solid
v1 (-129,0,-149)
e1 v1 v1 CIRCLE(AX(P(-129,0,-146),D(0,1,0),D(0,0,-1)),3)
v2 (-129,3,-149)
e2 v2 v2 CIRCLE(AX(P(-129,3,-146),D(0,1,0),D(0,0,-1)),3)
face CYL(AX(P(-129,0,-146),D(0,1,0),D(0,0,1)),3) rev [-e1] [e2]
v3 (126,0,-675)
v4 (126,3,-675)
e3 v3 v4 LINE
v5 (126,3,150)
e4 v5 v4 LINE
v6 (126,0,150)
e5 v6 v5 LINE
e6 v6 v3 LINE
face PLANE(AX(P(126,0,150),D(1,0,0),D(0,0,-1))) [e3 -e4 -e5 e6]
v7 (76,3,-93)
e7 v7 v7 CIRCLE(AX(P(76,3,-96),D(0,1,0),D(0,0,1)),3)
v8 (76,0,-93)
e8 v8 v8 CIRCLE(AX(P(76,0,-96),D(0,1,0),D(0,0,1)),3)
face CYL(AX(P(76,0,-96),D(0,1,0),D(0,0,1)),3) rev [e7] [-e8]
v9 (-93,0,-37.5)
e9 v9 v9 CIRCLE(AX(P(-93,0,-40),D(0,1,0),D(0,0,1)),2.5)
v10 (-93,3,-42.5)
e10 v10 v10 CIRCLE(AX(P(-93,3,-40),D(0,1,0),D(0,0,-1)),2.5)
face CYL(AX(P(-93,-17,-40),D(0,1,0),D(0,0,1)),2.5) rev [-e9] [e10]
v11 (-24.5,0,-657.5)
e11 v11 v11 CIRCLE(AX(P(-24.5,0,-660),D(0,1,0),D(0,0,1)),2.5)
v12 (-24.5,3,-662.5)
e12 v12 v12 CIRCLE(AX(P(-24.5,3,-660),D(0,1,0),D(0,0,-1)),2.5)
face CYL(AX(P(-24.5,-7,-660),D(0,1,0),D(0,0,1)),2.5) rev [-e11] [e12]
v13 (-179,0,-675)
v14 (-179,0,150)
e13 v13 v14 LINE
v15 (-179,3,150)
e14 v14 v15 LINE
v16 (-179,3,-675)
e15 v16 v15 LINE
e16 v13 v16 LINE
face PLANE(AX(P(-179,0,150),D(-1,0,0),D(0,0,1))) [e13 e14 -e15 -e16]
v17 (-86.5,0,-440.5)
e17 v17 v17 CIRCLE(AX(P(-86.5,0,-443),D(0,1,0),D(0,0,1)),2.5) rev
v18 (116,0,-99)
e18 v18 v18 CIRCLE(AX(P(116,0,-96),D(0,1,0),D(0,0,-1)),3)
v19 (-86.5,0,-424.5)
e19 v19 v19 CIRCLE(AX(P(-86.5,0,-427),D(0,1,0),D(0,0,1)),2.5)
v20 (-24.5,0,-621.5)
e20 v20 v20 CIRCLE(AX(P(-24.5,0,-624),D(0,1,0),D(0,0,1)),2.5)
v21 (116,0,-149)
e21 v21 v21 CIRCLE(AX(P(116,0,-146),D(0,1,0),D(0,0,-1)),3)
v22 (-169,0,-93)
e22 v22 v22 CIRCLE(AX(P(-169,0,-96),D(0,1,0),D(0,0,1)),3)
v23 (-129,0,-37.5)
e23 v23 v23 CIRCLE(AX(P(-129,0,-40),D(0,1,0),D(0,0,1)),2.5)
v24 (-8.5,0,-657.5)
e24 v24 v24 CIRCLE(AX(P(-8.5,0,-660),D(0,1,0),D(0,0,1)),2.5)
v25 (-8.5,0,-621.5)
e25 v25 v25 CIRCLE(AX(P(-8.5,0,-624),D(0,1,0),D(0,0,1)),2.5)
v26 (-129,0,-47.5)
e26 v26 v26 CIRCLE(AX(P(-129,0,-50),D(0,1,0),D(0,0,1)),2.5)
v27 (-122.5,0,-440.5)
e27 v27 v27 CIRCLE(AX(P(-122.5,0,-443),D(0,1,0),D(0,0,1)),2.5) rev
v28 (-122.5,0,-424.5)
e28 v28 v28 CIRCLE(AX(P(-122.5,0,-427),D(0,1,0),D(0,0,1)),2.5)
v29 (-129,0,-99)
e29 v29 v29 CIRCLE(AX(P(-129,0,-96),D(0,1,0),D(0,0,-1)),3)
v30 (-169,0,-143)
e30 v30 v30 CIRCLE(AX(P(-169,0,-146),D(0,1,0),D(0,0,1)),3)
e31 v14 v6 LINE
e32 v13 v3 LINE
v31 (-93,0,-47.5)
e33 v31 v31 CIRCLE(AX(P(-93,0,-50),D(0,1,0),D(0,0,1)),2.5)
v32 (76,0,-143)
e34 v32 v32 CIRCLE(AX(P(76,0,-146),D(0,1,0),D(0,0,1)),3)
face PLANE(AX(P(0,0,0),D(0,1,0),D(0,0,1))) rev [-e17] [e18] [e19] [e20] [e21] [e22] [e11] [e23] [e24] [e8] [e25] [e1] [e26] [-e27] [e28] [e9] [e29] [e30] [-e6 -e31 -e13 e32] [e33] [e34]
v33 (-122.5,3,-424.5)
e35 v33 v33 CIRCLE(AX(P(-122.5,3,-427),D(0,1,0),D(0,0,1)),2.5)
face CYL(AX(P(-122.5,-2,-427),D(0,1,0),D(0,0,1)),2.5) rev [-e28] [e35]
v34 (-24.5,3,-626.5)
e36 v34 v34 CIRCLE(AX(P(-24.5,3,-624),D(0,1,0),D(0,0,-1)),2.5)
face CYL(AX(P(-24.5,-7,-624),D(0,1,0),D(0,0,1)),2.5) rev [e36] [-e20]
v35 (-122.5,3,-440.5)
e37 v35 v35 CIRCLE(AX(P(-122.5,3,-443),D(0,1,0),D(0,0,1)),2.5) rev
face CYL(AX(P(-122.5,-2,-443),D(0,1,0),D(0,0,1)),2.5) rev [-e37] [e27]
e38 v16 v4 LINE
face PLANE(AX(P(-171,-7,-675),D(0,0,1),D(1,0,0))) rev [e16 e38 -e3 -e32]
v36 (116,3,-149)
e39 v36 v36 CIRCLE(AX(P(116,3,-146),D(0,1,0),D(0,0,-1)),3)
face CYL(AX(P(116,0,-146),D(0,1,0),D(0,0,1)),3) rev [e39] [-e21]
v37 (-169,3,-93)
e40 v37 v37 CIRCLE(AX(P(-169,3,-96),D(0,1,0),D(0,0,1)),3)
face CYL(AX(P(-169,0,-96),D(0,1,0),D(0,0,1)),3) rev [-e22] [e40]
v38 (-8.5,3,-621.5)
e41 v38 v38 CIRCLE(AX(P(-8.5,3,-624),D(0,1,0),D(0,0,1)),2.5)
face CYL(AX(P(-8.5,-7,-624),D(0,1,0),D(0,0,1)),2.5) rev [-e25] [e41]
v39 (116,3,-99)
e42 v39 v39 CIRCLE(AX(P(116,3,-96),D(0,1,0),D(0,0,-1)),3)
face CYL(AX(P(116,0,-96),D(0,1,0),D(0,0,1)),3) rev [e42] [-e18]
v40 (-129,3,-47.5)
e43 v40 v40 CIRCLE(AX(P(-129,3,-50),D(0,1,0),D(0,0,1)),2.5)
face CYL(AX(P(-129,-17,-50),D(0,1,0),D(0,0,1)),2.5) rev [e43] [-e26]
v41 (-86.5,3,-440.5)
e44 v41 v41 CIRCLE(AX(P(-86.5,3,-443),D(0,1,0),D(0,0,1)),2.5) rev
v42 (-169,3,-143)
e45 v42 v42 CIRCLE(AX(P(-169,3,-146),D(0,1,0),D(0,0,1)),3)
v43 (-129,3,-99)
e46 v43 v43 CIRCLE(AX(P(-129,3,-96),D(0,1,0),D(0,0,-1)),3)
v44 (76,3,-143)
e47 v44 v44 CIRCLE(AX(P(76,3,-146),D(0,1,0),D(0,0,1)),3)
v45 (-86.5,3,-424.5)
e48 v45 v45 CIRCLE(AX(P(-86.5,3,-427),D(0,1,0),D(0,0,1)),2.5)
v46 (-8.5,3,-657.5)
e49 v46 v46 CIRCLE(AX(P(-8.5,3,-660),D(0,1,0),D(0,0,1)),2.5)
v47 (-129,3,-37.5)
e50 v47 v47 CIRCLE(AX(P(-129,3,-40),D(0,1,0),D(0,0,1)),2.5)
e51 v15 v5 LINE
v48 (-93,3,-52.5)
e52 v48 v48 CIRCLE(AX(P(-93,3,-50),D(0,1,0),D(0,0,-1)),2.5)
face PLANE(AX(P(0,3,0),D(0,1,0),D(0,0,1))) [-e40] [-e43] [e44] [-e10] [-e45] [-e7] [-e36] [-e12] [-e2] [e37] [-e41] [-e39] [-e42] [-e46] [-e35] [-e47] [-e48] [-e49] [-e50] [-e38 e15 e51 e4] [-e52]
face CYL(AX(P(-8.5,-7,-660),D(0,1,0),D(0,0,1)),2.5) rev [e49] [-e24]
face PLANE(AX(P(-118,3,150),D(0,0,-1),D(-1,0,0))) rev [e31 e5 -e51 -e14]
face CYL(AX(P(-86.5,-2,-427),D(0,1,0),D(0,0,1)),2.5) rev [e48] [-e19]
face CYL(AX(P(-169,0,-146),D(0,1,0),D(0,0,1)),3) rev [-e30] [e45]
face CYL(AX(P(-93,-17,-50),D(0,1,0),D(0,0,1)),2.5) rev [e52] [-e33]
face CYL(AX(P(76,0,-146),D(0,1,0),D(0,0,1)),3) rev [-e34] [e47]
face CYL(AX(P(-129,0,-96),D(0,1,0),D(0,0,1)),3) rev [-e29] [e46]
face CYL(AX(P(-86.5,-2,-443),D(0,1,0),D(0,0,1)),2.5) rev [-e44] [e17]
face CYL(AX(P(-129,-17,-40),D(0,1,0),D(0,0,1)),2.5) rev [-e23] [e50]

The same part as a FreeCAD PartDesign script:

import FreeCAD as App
import Part
import Sketcher
from FreeCAD import Vector


def add_polygon(sketch, points):
    """Adds a closed chain of lines whose ends are joined by coincident constraints."""
    first, n = sketch.GeometryCount, len(points)
    for a, b in zip(points, points[1:] + points[:1]):
        sketch.addGeometry(Part.LineSegment(App.Vector(*a, 0), App.Vector(*b, 0)), False)
    for i in range(n):
        sketch.addConstraint(Sketcher.Constraint("Coincident", first + i, 2, first + (i + 1) % n, 1))

doc = App.newDocument("Part")
params = doc.addObject("Spreadsheet::Sheet", "Params")
for row, (alias, value) in enumerate([
    ("sketch1_width", "289 mm"),
    ("sketch1_height", "300 mm"),
    ("pad1_length", "3 mm"),
    ("sketch2_diameter", "5 mm"),
    ("pocket1_length", "20 mm"),
    ("sketch3_width", "289 mm"),
    ("sketch3_height", "3 mm"),
    ("pad2_length", "600 mm"),
    ("sketch4_diameter", "5 mm"),
    ("pocket2_length", "10 mm"),
    ("sketch5_width", "289 mm"),
    ("sketch5_height", "75 mm"),
    ("pocket3_length", "10 mm"),
    ("sketch6_diameter", "5 mm"),
    ("pocket4_length", "5 mm"),
    ("sketch7_width", "8 mm"),
    ("sketch7_height", "825 mm"),
    ("sketch8_diameter", "6 mm"),
], start=1):
    params.set(f"A{row}", alias)
    params.set(f"B{row}", "=" + value)
    params.setAlias(f"B{row}", alias)

body = doc.addObject("PartDesign::Body", "Body")

# Sketch on XZ plane
sketch1 = doc.addObject("Sketcher::SketchObject", "Sketch")
body.addObject(sketch1)
sketch1.AttachmentSupport = (doc.XZ_Plane, [""])
sketch1.MapMode = "FlatFace"
add_polygon(sketch1, [(-171, -150), (-171, 150), (118, 150), (118, -150)])  # lines 0-3
sketch1.addConstraint(Sketcher.Constraint("Vertical", 0))
sketch1.addConstraint(Sketcher.Constraint("Horizontal", 1))
sketch1.addConstraint(Sketcher.Constraint("Vertical", 2))
sketch1.addConstraint(Sketcher.Constraint("Horizontal", 3))
sketch1.addConstraint(Sketcher.Constraint("DistanceX", 1, 1, 1, 2, 289.0))
sketch1.addConstraint(Sketcher.Constraint("DistanceY", 0, 1, 0, 2, 300.0))
sketch1.addConstraint(Sketcher.Constraint("DistanceX", 0, 2, -1, 1, 171.0))
sketch1.addConstraint(Sketcher.Constraint("DistanceY", -1, 1, 0, 2, 150.0))
sketch1.setExpression("Constraints[8]", "Params.sketch1_width")
sketch1.setExpression("Constraints[9]", "Params.sketch1_height")
pad1 = doc.addObject("PartDesign::Pad", "Pad")
body.addObject(pad1)
pad1.Profile = sketch1
pad1.setExpression("Length", "Params.pad1_length")
pad1.Reversed = True

# Sketch on XZ plane
sketch2 = doc.addObject("Sketcher::SketchObject", "Sketch001")
body.addObject(sketch2)
sketch2.AttachmentSupport = (doc.XZ_Plane, [""])
sketch2.MapMode = "FlatFace"
sketch2.AttachmentOffset = App.Placement(Vector(0, 0, -3), App.Rotation())
sketch2.addGeometry(Part.Circle(Vector(-129, -50, 0), Vector(0, 0, 1), 2.5), False)
sketch2.addGeometry(Part.Circle(Vector(-129, -40, 0), Vector(0, 0, 1), 2.5), False)
sketch2.addGeometry(Part.Circle(Vector(-93, -40, 0), Vector(0, 0, 1), 2.5), False)
sketch2.addGeometry(Part.Circle(Vector(-93, -50, 0), Vector(0, 0, 1), 2.5), False)
sketch2.addConstraint(Sketcher.Constraint("Equal", 0, 1))
sketch2.addConstraint(Sketcher.Constraint("Equal", 1, 2))
sketch2.addConstraint(Sketcher.Constraint("Equal", 2, 3))
sketch2.addConstraint(Sketcher.Constraint("Horizontal", 1, 3, 2, 3))
sketch2.addConstraint(Sketcher.Constraint("Horizontal", 0, 3, 3, 3))
sketch2.addConstraint(Sketcher.Constraint("Vertical", 0, 3, 1, 3))
sketch2.addConstraint(Sketcher.Constraint("Vertical", 2, 3, 3, 3))
sketch2.addConstraint(Sketcher.Constraint("Diameter", 0, 5.0))
sketch2.addConstraint(Sketcher.Constraint("DistanceX", 0, 3, -1, 1, 129.0))
sketch2.addConstraint(Sketcher.Constraint("DistanceY", 0, 3, -1, 1, 50.0))
sketch2.addConstraint(Sketcher.Constraint("DistanceY", 1, 3, -1, 1, 40.0))
sketch2.addConstraint(Sketcher.Constraint("DistanceX", 2, 3, -1, 1, 93.0))
sketch2.setExpression("Constraints[7]", "Params.sketch2_diameter")
pocket1 = doc.addObject("PartDesign::Pocket", "Pocket")
body.addObject(pocket1)
pocket1.Profile = sketch2
pocket1.setExpression("Length", "Params.pocket1_length")
pocket1.Reversed = True

# Sketch on XY plane
sketch3 = doc.addObject("Sketcher::SketchObject", "Sketch002")
body.addObject(sketch3)
sketch3.AttachmentSupport = (doc.XY_Plane, [""])
sketch3.MapMode = "FlatFace"
sketch3.AttachmentOffset = App.Placement(Vector(0, 0, -150), App.Rotation())
add_polygon(sketch3, [(118, 3), (118, 0), (-171, 0), (-171, 3)])  # lines 0-3
sketch3.addConstraint(Sketcher.Constraint("Vertical", 0))
sketch3.addConstraint(Sketcher.Constraint("Horizontal", 1))
sketch3.addConstraint(Sketcher.Constraint("Vertical", 2))
sketch3.addConstraint(Sketcher.Constraint("Horizontal", 3))
sketch3.addConstraint(Sketcher.Constraint("PointOnObject", 0, 2, -1))
sketch3.addConstraint(Sketcher.Constraint("DistanceX", 1, 2, 1, 1, 289.0))
sketch3.addConstraint(Sketcher.Constraint("DistanceY", 0, 2, 0, 1, 3.0))
sketch3.addConstraint(Sketcher.Constraint("DistanceX", -1, 1, 0, 2, 118.0))
sketch3.setExpression("Constraints[9]", "Params.sketch3_width")
sketch3.setExpression("Constraints[10]", "Params.sketch3_height")
pad2 = doc.addObject("PartDesign::Pad", "Pad001")
body.addObject(pad2)
pad2.Profile = sketch3
pad2.setExpression("Length", "Params.pad2_length")
pad2.Reversed = True

# Sketch on XZ plane
sketch4 = doc.addObject("Sketcher::SketchObject", "Sketch003")
body.addObject(sketch4)
sketch4.AttachmentSupport = (doc.XZ_Plane, [""])
sketch4.MapMode = "FlatFace"
sketch4.AttachmentOffset = App.Placement(Vector(0, 0, -3), App.Rotation())
sketch4.addGeometry(Part.Circle(Vector(-8.5, -660, 0), Vector(0, 0, 1), 2.5), False)
sketch4.addGeometry(Part.Circle(Vector(-8.5, -624, 0), Vector(0, 0, 1), 2.5), False)
sketch4.addGeometry(Part.Circle(Vector(-24.5, -624, 0), Vector(0, 0, 1), 2.5), False)
sketch4.addGeometry(Part.Circle(Vector(-24.5, -660, 0), Vector(0, 0, 1), 2.5), False)
sketch4.addConstraint(Sketcher.Constraint("Equal", 0, 1))
sketch4.addConstraint(Sketcher.Constraint("Equal", 1, 2))
sketch4.addConstraint(Sketcher.Constraint("Equal", 2, 3))
sketch4.addConstraint(Sketcher.Constraint("Horizontal", 1, 3, 2, 3))
sketch4.addConstraint(Sketcher.Constraint("Horizontal", 0, 3, 3, 3))
sketch4.addConstraint(Sketcher.Constraint("Vertical", 0, 3, 1, 3))
sketch4.addConstraint(Sketcher.Constraint("Vertical", 2, 3, 3, 3))
sketch4.addConstraint(Sketcher.Constraint("Diameter", 0, 5.0))
sketch4.addConstraint(Sketcher.Constraint("DistanceY", 0, 3, -1, 1, 660.0))
sketch4.addConstraint(Sketcher.Constraint("DistanceY", 1, 3, -1, 1, 624.0))
sketch4.addConstraint(Sketcher.Constraint("DistanceX", 2, 3, 1, 3, 16.0))
sketch4.addConstraint(Sketcher.Constraint("DistanceX", 0, 3, -1, 1, 8.5))
sketch4.setExpression("Constraints[7]", "Params.sketch4_diameter")
pocket2 = doc.addObject("PartDesign::Pocket", "Pocket001")
body.addObject(pocket2)
pocket2.Profile = sketch4
pocket2.setExpression("Length", "Params.pocket2_length")
pocket2.Reversed = True

# Sketch on XZ plane
sketch5 = doc.addObject("Sketcher::SketchObject", "Sketch004")
body.addObject(sketch5)
sketch5.AttachmentSupport = (doc.XZ_Plane, [""])
sketch5.MapMode = "FlatFace"
sketch5.AttachmentOffset = App.Placement(Vector(0, 0, -3), App.Rotation())
add_polygon(sketch5, [(-171, -750), (-171, -675), (118, -675), (118, -750)])  # lines 0-3
sketch5.addConstraint(Sketcher.Constraint("Vertical", 0))
sketch5.addConstraint(Sketcher.Constraint("Horizontal", 1))
sketch5.addConstraint(Sketcher.Constraint("Vertical", 2))
sketch5.addConstraint(Sketcher.Constraint("Horizontal", 3))
sketch5.addConstraint(Sketcher.Constraint("DistanceX", 1, 1, 1, 2, 289.0))
sketch5.addConstraint(Sketcher.Constraint("DistanceY", 0, 1, 0, 2, 75.0))
sketch5.addConstraint(Sketcher.Constraint("DistanceX", 0, 2, -1, 1, 171.0))
sketch5.addConstraint(Sketcher.Constraint("DistanceY", 0, 2, -1, 1, 675.0))
sketch5.setExpression("Constraints[8]", "Params.sketch5_width")
sketch5.setExpression("Constraints[9]", "Params.sketch5_height")
pocket3 = doc.addObject("PartDesign::Pocket", "Pocket002")
body.addObject(pocket3)
pocket3.Profile = sketch5
pocket3.setExpression("Length", "Params.pocket3_length")
pocket3.Reversed = True

# Sketch on XZ plane
sketch6 = doc.addObject("Sketcher::SketchObject", "Sketch005")
body.addObject(sketch6)
sketch6.AttachmentSupport = (doc.XZ_Plane, [""])
sketch6.MapMode = "FlatFace"
sketch6.AttachmentOffset = App.Placement(Vector(0, 0, -3), App.Rotation())
sketch6.addGeometry(Part.Circle(Vector(-86.5, -443, 0), Vector(0, 0, 1), 2.5), False)
sketch6.addGeometry(Part.Circle(Vector(-86.5, -427, 0), Vector(0, 0, 1), 2.5), False)
sketch6.addGeometry(Part.Circle(Vector(-122.5, -427, 0), Vector(0, 0, 1), 2.5), False)
sketch6.addGeometry(Part.Circle(Vector(-122.5, -443, 0), Vector(0, 0, 1), 2.5), False)
sketch6.addConstraint(Sketcher.Constraint("Equal", 0, 1))
sketch6.addConstraint(Sketcher.Constraint("Equal", 1, 2))
sketch6.addConstraint(Sketcher.Constraint("Equal", 2, 3))
sketch6.addConstraint(Sketcher.Constraint("Horizontal", 1, 3, 2, 3))
sketch6.addConstraint(Sketcher.Constraint("Horizontal", 0, 3, 3, 3))
sketch6.addConstraint(Sketcher.Constraint("Vertical", 0, 3, 1, 3))
sketch6.addConstraint(Sketcher.Constraint("Vertical", 2, 3, 3, 3))
sketch6.addConstraint(Sketcher.Constraint("Diameter", 0, 5.0))
sketch6.addConstraint(Sketcher.Constraint("DistanceY", 0, 3, -1, 1, 443.0))
sketch6.addConstraint(Sketcher.Constraint("DistanceY", 1, 3, -1, 1, 427.0))
sketch6.addConstraint(Sketcher.Constraint("DistanceX", 2, 3, 1, 3, 36.0))
sketch6.addConstraint(Sketcher.Constraint("DistanceX", 0, 3, -1, 1, 86.5))
sketch6.setExpression("Constraints[7]", "Params.sketch6_diameter")
pocket4 = doc.addObject("PartDesign::Pocket", "Pocket003")
body.addObject(pocket4)
pocket4.Profile = sketch6
pocket4.setExpression("Length", "Params.pocket4_length")
pocket4.Reversed = True

# Sketch on XZ plane
sketch7 = doc.addObject("Sketcher::SketchObject", "Sketch006")
body.addObject(sketch7)
sketch7.AttachmentSupport = (doc.XZ_Plane, [""])
sketch7.MapMode = "FlatFace"
sketch7.AttachmentOffset = App.Placement(Vector(0, 0, -3), App.Rotation())
add_polygon(sketch7, [(-179, -675), (-179, 150), (-171, 150), (-171, -675)])  # lines 0-3
add_polygon(sketch7, [(118, -675), (118, 150), (126, 150), (126, -675)])  # lines 4-7
sketch7.addConstraint(Sketcher.Constraint("Vertical", 0))
sketch7.addConstraint(Sketcher.Constraint("Horizontal", 1))
sketch7.addConstraint(Sketcher.Constraint("Vertical", 2))
sketch7.addConstraint(Sketcher.Constraint("Horizontal", 3))
sketch7.addConstraint(Sketcher.Constraint("Vertical", 4))
sketch7.addConstraint(Sketcher.Constraint("Horizontal", 5))
sketch7.addConstraint(Sketcher.Constraint("Vertical", 6))
sketch7.addConstraint(Sketcher.Constraint("Horizontal", 7))
sketch7.addConstraint(Sketcher.Constraint("Horizontal", 1, 2, 4, 2))
sketch7.addConstraint(Sketcher.Constraint("Horizontal", 3, 2, 6, 2))
sketch7.addConstraint(Sketcher.Constraint("Equal", 3, 5))
sketch7.addConstraint(Sketcher.Constraint("DistanceX", 1, 1, 1, 2, 8.0))
sketch7.addConstraint(Sketcher.Constraint("DistanceY", 0, 1, 0, 2, 825.0))
sketch7.addConstraint(Sketcher.Constraint("DistanceX", 0, 2, -1, 1, 179.0))
sketch7.addConstraint(Sketcher.Constraint("DistanceY", -1, 1, 0, 2, 150.0))
sketch7.addConstraint(Sketcher.Constraint("DistanceX", -1, 1, 4, 2, 118.0))
sketch7.setExpression("Constraints[19]", "Params.sketch7_width")
sketch7.setExpression("Constraints[20]", "Params.sketch7_height")
pad3 = doc.addObject("PartDesign::Pad", "Pad002")
body.addObject(pad3)
pad3.Profile = sketch7
pad3.Type = "UpToLast"

# Sketch on XZ plane
sketch8 = doc.addObject("Sketcher::SketchObject", "Sketch007")
body.addObject(sketch8)
sketch8.AttachmentSupport = (doc.XZ_Plane, [""])
sketch8.MapMode = "FlatFace"
sketch8.AttachmentOffset = App.Placement(Vector(0, 0, -3), App.Rotation())
sketch8.addGeometry(Part.Circle(Vector(-169, -96, 0), Vector(0, 0, 1), 3), False)
sketch8.addGeometry(Part.Circle(Vector(-169, -146, 0), Vector(0, 0, 1), 3), False)
sketch8.addGeometry(Part.Circle(Vector(-129, -96, 0), Vector(0, 0, 1), 3), False)
sketch8.addGeometry(Part.Circle(Vector(-129, -146, 0), Vector(0, 0, 1), 3), False)
sketch8.addGeometry(Part.Circle(Vector(116, -96, 0), Vector(0, 0, 1), 3), False)
sketch8.addGeometry(Part.Circle(Vector(76, -96, 0), Vector(0, 0, 1), 3), False)
sketch8.addGeometry(Part.Circle(Vector(76, -146, 0), Vector(0, 0, 1), 3), False)
sketch8.addGeometry(Part.Circle(Vector(116, -146, 0), Vector(0, 0, 1), 3), False)
sketch8.addConstraint(Sketcher.Constraint("Equal", 0, 1))
sketch8.addConstraint(Sketcher.Constraint("Equal", 1, 2))
sketch8.addConstraint(Sketcher.Constraint("Equal", 2, 3))
sketch8.addConstraint(Sketcher.Constraint("Equal", 3, 4))
sketch8.addConstraint(Sketcher.Constraint("Equal", 4, 5))
sketch8.addConstraint(Sketcher.Constraint("Equal", 5, 6))
sketch8.addConstraint(Sketcher.Constraint("Equal", 6, 7))
sketch8.addConstraint(Sketcher.Constraint("Horizontal", 0, 3, 2, 3))
sketch8.addConstraint(Sketcher.Constraint("Horizontal", 1, 3, 3, 3))
sketch8.addConstraint(Sketcher.Constraint("Horizontal", 2, 3, 4, 3))
sketch8.addConstraint(Sketcher.Constraint("Horizontal", 4, 3, 5, 3))
sketch8.addConstraint(Sketcher.Constraint("Horizontal", 3, 3, 6, 3))
sketch8.addConstraint(Sketcher.Constraint("Horizontal", 6, 3, 7, 3))
sketch8.addConstraint(Sketcher.Constraint("Vertical", 0, 3, 1, 3))
sketch8.addConstraint(Sketcher.Constraint("Vertical", 2, 3, 3, 3))
sketch8.addConstraint(Sketcher.Constraint("Vertical", 5, 3, 6, 3))
sketch8.addConstraint(Sketcher.Constraint("Vertical", 4, 3, 7, 3))
sketch8.addConstraint(Sketcher.Constraint("Diameter", 0, 6.0))
sketch8.addConstraint(Sketcher.Constraint("DistanceX", 0, 3, -1, 1, 169.0))
sketch8.addConstraint(Sketcher.Constraint("DistanceY", 0, 3, -1, 1, 96.0))
sketch8.addConstraint(Sketcher.Constraint("DistanceY", 1, 3, -1, 1, 146.0))
sketch8.addConstraint(Sketcher.Constraint("DistanceX", 2, 3, -1, 1, 129.0))
sketch8.addConstraint(Sketcher.Constraint("DistanceX", -1, 1, 4, 3, 116.0))
sketch8.addConstraint(Sketcher.Constraint("DistanceX", -1, 1, 5, 3, 76.0))
sketch8.setExpression("Constraints[17]", "Params.sketch8_diameter")
pocket5 = doc.addObject("PartDesign::Pocket", "Pocket004")
body.addObject(pocket5)
pocket5.Profile = sketch8
pocket5.Type = "ThroughAll"
pocket5.Reversed = True

doc.recompute()
